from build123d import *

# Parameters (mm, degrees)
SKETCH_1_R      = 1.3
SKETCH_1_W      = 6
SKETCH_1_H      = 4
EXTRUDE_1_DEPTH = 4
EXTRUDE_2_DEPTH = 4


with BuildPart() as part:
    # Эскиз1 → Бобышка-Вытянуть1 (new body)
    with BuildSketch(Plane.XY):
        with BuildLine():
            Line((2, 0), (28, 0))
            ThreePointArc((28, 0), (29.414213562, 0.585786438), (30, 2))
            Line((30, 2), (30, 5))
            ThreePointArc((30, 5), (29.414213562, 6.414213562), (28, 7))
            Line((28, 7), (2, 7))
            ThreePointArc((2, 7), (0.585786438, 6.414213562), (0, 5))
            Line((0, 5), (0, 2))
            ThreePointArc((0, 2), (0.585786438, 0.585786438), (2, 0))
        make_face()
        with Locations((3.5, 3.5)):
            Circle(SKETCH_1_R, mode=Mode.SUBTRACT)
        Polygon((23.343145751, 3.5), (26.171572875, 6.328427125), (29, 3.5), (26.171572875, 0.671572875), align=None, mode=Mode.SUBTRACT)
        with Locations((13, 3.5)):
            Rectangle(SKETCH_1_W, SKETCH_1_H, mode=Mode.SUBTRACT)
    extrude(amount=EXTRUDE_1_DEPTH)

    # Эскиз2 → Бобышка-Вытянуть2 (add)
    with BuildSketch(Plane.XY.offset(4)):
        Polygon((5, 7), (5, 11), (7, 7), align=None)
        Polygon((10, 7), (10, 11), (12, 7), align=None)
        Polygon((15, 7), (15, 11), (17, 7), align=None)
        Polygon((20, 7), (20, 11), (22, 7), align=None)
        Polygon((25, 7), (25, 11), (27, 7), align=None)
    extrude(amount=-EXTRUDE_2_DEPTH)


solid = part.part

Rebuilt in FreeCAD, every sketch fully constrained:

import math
import FreeCAD as App
import Part
import Sketcher
from FreeCAD import Vector


def add_polygon(sketch, points):
    """Adds a closed chain of lines whose ends are joined by coincident constraints."""
    first, n = sketch.GeometryCount, len(points)
    for a, b in zip(points, points[1:] + points[:1]):
        sketch.addGeometry(Part.LineSegment(App.Vector(*a, 0), App.Vector(*b, 0)), False)
    for i in range(n):
        sketch.addConstraint(Sketcher.Constraint("Coincident", first + i, 2, first + (i + 1) % n, 1))

doc = App.newDocument("Part")
params = doc.addObject("Spreadsheet::Sheet", "Params")
for row, (alias, value) in enumerate([
    ("sketch1_radius", "2 mm"),
    ("sketch1_diameter", "2.6 mm"),
    ("sketch1_width", "26 mm"),
    ("sketch1_width2", "6 mm"),
    ("sketch1_height", "3 mm"),
    ("pad1_length", "4 mm"),
    ("sketch2_width", "2 mm"),
    ("sketch2_height", "4 mm"),
    ("pad2_length", "4 mm"),
], start=1):
    params.set(f"A{row}", alias)
    params.set(f"B{row}", "=" + value)
    params.setAlias(f"B{row}", alias)

body = doc.addObject("PartDesign::Body", "Body")

sketch1 = body.newObject("Sketcher::SketchObject", "Sketch")
sketch1.AttachmentSupport = (doc.getObject("XY_Plane"), [""])
sketch1.MapMode = "FlatFace"
sketch1.addGeometry(Part.LineSegment(Vector(2, 0, 0), Vector(28, 0, 0)), False)
sketch1.addGeometry(Part.ArcOfCircle(Part.Circle(Vector(28, 2, 0), Vector(0, 0, 1), 2), math.radians(-90), math.radians(0)), False)
sketch1.addGeometry(Part.LineSegment(Vector(30, 2, 0), Vector(30, 5, 0)), False)
sketch1.addGeometry(Part.ArcOfCircle(Part.Circle(Vector(28, 5, 0), Vector(0, 0, 1), 2), math.radians(0), math.radians(90)), False)
sketch1.addGeometry(Part.LineSegment(Vector(28, 7, 0), Vector(2, 7, 0)), False)
sketch1.addGeometry(Part.ArcOfCircle(Part.Circle(Vector(2, 5, 0), Vector(0, 0, 1), 2), math.radians(90), math.radians(180)), False)
sketch1.addGeometry(Part.LineSegment(Vector(0, 5, 0), Vector(0, 2, 0)), False)
sketch1.addGeometry(Part.ArcOfCircle(Part.Circle(Vector(2, 2, 0), Vector(0, 0, 1), 2), math.radians(-180), math.radians(-90)), False)
sketch1.addGeometry(Part.Circle(Vector(3.5, 3.5, 0), Vector(0, 0, 1), 1.3), False)
add_polygon(sketch1, [(16, 1.5), (10, 1.5), (10, 5.5), (16, 5.5)])
add_polygon(sketch1, [(26.2, 0.7), (23.3, 3.5), (26.2, 6.3), (29, 3.5)])
sketch1.addConstraint([
    Sketcher.Constraint("Tangent", 0, 2, 1, 1),
    Sketcher.Constraint("Tangent", 1, 2, 2, 1),
    Sketcher.Constraint("Tangent", 2, 2, 3, 1),
    Sketcher.Constraint("Tangent", 3, 2, 4, 1),
    Sketcher.Constraint("Tangent", 4, 2, 5, 1),
    Sketcher.Constraint("Tangent", 5, 2, 6, 1),
    Sketcher.Constraint("Tangent", 6, 2, 7, 1),
    Sketcher.Constraint("Tangent", 7, 2, 0, 1),
    Sketcher.Constraint("Horizontal", 0),
    Sketcher.Constraint("Vertical", 2),
    Sketcher.Constraint("Horizontal", 4),
    Sketcher.Constraint("Vertical", 6),
    Sketcher.Constraint("Horizontal", 9),
    Sketcher.Constraint("Vertical", 10),
    Sketcher.Constraint("Horizontal", 11),
    Sketcher.Constraint("Vertical", 12),
    Sketcher.Constraint("Equal", 1, 3),
    Sketcher.Constraint("Equal", 3, 5),
    Sketcher.Constraint("Equal", 5, 7),
    Sketcher.Constraint("PointOnObject", 0, 2, -1),
    Sketcher.Constraint("PointOnObject", 5, 2, -2),
    Sketcher.Constraint("Perpendicular", 13, 14),
    Sketcher.Constraint("Perpendicular", 14, 15),
    Sketcher.Constraint("Perpendicular", 15, 16),
    Sketcher.Constraint("Horizontal", 8, 3, 13, 2),
    Sketcher.Constraint("Horizontal", 13, 2, 15, 2),
    Sketcher.Constraint("Vertical", 14, 2, 16, 2),
    Sketcher.Constraint("Radius", 1, 2.0),
    Sketcher.Constraint("Diameter", 8, 2.6),
    Sketcher.Constraint("DistanceX", 0, 1, 0, 2, 26.0),
    Sketcher.Constraint("DistanceX", 9, 2, 9, 1, 6.0),
    Sketcher.Constraint("DistanceY", 2, 1, 2, 2, 3.0),
    Sketcher.Constraint("DistanceY", 10, 1, 10, 2, 4.0),
    Sketcher.Constraint("Distance", 13, 4.0),
    Sketcher.Constraint("DistanceX", -1, 1, 9, 2, 10.0),
    Sketcher.Constraint("DistanceX", -1, 1, 15, 2, 29.0),
    Sketcher.Constraint("DistanceY", 9, 2, 8, 3, 2.0),
    Sketcher.Constraint("DistanceX", -1, 1, 8, 3, 3.5),
    Sketcher.Constraint("DistanceY", -1, 1, 8, 3, 3.5),
])
sketch1.setExpression("Constraints[35]", "Params.sketch1_radius")
sketch1.setExpression("Constraints[36]", "Params.sketch1_diameter")
sketch1.setExpression("Constraints[37]", "Params.sketch1_width")
sketch1.setExpression("Constraints[38]", "Params.sketch1_width2")
sketch1.setExpression("Constraints[39]", "Params.sketch1_height")
pad1 = body.newObject("PartDesign::Pad", "Pad")
pad1.Profile = sketch1
pad1.setExpression("Length", "Params.pad1_length")

sketch2 = body.newObject("Sketcher::SketchObject", "Sketch001")
sketch2.AttachmentSupport = (doc.getObject("XY_Plane"), [""])
sketch2.MapMode = "FlatFace"
sketch2.AttachmentOffset = App.Placement(Vector(0, 0, 4), App.Rotation())
add_polygon(sketch2, [(5, 11), (5, 7), (7, 7)])
add_polygon(sketch2, [(10, 11), (10, 7), (12, 7)])
add_polygon(sketch2, [(15, 11), (15, 7), (17, 7)])
add_polygon(sketch2, [(20, 11), (20, 7), (22, 7)])
add_polygon(sketch2, [(25, 11), (25, 7), (27, 7)])
sketch2.addConstraint([
    Sketcher.Constraint("Vertical", 0),
    Sketcher.Constraint("Horizontal", 1),
    Sketcher.Constraint("Vertical", 3),
    Sketcher.Constraint("Horizontal", 4),
    Sketcher.Constraint("Vertical", 6),
    Sketcher.Constraint("Horizontal", 7),
    Sketcher.Constraint("Vertical", 9),
    Sketcher.Constraint("Horizontal", 10),
    Sketcher.Constraint("Vertical", 12),
    Sketcher.Constraint("Horizontal", 13),
    Sketcher.Constraint("Parallel", 2, 5),
    Sketcher.Constraint("Parallel", 5, 8),
    Sketcher.Constraint("Parallel", 8, 11),
    Sketcher.Constraint("Parallel", 11, 14),
    Sketcher.Constraint("Horizontal", 1, 2, 3, 2),
    Sketcher.Constraint("Horizontal", 2, 2, 5, 2),
    Sketcher.Constraint("Horizontal", 4, 2, 6, 2),
    Sketcher.Constraint("Horizontal", 5, 2, 8, 2),
    Sketcher.Constraint("Horizontal", 7, 2, 9, 2),
    Sketcher.Constraint("Horizontal", 8, 2, 11, 2),
    Sketcher.Constraint("Horizontal", 10, 2, 12, 2),
    Sketcher.Constraint("Horizontal", 11, 2, 14, 2),
    Sketcher.Constraint("DistanceX", 1, 1, 1, 2, 2.0),
    Sketcher.Constraint("DistanceY", 0, 2, 0, 1, 4.0),
    Sketcher.Constraint("DistanceX", -1, 1, 0, 2, 5.0),
    Sketcher.Constraint("DistanceY", -1, 1, 0, 2, 7.0),
    Sketcher.Constraint("DistanceX", -1, 1, 3, 2, 10.0),
    Sketcher.Constraint("DistanceX", -1, 1, 6, 2, 15.0),
    Sketcher.Constraint("DistanceX", -1, 1, 9, 2, 20.0),
    Sketcher.Constraint("DistanceX", -1, 1, 12, 2, 25.0),
])
sketch2.setExpression("Constraints[37]", "Params.sketch2_width")
sketch2.setExpression("Constraints[38]", "Params.sketch2_height")
pad2 = body.newObject("PartDesign::Pad", "Pad001")
pad2.Profile = sketch2
pad2.setExpression("Length", "Params.pad2_length")
pad2.Reversed = True

doc.recompute()
